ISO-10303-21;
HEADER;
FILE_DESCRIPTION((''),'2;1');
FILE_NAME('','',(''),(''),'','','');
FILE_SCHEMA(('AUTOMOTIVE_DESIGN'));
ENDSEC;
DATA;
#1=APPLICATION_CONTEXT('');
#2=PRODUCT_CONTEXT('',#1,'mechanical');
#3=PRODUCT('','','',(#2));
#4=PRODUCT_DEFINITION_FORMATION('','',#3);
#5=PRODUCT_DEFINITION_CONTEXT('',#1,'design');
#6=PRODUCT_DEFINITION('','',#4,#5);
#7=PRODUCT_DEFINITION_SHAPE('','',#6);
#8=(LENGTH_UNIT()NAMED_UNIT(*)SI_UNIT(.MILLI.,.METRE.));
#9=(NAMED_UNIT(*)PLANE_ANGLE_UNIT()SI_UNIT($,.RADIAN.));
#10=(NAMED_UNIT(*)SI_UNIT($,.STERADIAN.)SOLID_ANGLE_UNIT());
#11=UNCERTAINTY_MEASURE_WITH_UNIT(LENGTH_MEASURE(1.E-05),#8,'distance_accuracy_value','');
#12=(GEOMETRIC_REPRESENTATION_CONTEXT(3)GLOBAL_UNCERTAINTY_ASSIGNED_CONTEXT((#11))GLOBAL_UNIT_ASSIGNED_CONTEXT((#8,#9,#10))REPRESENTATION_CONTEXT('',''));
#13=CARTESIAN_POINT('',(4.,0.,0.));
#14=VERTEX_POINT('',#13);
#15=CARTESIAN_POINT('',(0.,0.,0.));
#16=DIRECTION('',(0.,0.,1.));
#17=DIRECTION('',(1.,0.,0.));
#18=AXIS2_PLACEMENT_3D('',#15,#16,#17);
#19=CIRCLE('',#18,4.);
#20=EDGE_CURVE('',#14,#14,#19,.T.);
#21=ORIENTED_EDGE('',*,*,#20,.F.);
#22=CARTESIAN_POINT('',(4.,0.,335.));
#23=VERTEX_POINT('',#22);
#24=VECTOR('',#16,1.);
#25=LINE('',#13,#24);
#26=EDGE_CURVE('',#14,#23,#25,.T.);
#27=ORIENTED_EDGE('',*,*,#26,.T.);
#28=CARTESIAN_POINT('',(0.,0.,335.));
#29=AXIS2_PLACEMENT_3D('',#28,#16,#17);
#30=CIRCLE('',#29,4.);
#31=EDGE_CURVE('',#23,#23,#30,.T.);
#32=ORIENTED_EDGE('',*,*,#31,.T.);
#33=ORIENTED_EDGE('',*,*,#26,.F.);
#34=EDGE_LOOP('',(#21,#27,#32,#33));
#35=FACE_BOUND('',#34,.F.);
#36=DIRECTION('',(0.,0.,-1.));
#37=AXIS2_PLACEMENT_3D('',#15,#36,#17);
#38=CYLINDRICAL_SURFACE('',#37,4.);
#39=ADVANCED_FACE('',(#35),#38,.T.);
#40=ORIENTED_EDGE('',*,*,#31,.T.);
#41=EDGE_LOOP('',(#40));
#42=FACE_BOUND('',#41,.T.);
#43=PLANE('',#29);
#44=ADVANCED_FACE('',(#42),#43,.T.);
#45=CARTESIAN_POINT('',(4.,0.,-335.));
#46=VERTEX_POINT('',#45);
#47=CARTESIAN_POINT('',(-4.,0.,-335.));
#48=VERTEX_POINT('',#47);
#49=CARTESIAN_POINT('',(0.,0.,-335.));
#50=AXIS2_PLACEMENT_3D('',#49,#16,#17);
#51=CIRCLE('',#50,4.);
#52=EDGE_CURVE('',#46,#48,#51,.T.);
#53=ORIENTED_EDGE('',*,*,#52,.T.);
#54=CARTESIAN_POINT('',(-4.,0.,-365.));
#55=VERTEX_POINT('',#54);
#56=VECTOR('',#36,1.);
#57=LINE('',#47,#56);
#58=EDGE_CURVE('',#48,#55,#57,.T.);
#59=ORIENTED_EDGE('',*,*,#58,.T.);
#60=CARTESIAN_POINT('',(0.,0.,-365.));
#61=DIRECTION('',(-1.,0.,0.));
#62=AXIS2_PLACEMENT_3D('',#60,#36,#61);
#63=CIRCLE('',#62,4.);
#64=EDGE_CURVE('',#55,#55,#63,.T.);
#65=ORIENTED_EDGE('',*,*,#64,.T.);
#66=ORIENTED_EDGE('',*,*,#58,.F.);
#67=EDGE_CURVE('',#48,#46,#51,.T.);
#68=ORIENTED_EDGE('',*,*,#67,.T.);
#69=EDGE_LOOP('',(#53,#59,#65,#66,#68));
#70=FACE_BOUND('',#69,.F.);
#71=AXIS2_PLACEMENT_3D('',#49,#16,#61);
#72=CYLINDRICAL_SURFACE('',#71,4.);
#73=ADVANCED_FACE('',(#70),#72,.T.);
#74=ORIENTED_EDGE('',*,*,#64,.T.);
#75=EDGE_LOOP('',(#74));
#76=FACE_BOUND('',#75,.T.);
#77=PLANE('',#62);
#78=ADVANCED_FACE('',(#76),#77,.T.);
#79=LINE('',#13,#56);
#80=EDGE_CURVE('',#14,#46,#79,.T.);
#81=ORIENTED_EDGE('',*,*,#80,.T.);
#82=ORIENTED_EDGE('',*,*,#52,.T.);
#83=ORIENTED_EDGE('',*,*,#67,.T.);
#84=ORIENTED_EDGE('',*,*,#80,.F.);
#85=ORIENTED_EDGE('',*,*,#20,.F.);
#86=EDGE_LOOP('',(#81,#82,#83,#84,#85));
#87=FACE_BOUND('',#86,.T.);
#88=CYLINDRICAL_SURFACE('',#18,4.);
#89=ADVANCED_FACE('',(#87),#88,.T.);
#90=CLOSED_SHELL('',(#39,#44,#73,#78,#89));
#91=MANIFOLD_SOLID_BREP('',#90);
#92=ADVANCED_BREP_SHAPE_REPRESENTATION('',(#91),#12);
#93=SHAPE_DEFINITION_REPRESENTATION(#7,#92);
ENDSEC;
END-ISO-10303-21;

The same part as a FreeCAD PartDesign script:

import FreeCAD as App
import Part
import Sketcher
from FreeCAD import Vector
Q = App.Units.Quantity

doc = App.newDocument("Part")
body = doc.addObject("PartDesign::Body", "Body")

# Sketch on XY plane
sketch1 = body.newObject("Sketcher::SketchObject", "Sketch")
sketch1.AttachmentSupport = (doc.getObject("XY_Plane"), [""])
sketch1.MapMode = "FlatFace"
sketch1.addGeometry(Part.Circle(Vector(0, 0, 0), Vector(0, 0, 1), 4), False)
sketch1.addConstraint(Sketcher.Constraint("Coincident", 0, 3, -1, 1))
sketch1.addConstraint(Sketcher.Constraint("Diameter", 0, Q("8 mm")))
pad1 = body.newObject("PartDesign::Pad", "Pad")
pad1.Profile = sketch1
pad1.Length = 670
pad1.Midplane = True

# Sketch on XY plane
sketch2 = body.newObject("Sketcher::SketchObject", "Sketch001")
sketch2.AttachmentSupport = (doc.getObject("XY_Plane"), [""])
sketch2.MapMode = "FlatFace"
sketch2.AttachmentOffset = App.Placement(Vector(0, 0, -335), App.Rotation())
sketch2.addGeometry(Part.Circle(Vector(0, 0, 0), Vector(0, 0, 1), 4), False)
sketch2.addConstraint(Sketcher.Constraint("Coincident", 0, 3, -1, 1))
sketch2.addConstraint(Sketcher.Constraint("Diameter", 0, Q("8 mm")))
pad2 = body.newObject("PartDesign::Pad", "Pad001")
pad2.Profile = sketch2
pad2.Length = 30
pad2.Reversed = True

doc.recompute()
